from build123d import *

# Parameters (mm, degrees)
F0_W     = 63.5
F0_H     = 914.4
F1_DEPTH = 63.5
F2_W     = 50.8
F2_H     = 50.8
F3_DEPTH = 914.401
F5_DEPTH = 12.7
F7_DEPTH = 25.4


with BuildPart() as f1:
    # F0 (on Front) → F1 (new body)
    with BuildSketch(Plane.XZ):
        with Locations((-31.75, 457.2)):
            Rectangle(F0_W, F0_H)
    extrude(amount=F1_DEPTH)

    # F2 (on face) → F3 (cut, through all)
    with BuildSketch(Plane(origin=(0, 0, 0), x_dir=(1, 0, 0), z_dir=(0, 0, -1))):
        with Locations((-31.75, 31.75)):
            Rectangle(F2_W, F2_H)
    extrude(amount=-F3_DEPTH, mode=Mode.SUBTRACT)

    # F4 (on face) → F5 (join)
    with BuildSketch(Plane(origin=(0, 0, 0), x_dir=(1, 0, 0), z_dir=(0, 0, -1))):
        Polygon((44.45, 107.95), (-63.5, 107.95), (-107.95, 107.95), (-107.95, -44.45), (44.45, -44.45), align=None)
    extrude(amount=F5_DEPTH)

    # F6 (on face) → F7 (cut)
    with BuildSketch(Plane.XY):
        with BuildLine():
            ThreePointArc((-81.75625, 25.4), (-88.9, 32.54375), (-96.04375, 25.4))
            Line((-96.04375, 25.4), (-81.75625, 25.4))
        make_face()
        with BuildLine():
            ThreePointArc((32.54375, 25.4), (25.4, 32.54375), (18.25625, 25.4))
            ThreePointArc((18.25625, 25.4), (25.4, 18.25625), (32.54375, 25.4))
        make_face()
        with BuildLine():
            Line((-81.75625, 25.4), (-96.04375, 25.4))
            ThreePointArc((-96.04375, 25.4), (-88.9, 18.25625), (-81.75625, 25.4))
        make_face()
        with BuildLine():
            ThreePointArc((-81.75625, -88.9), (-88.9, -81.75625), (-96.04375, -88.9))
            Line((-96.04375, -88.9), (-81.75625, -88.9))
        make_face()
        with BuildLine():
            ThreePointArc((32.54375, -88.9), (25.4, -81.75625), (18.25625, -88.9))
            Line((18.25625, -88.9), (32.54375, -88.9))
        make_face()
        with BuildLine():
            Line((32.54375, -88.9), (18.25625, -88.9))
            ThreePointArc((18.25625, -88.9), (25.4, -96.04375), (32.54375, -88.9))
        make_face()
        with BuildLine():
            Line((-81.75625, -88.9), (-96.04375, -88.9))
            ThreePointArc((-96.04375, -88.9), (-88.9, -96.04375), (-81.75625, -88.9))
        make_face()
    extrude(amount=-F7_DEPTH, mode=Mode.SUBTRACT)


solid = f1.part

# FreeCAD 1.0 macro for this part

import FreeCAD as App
import Part
import Sketcher
from FreeCAD import Vector
Q = App.Units.Quantity


def add_polygon(sketch, points):
    """Adds a closed chain of lines whose ends are joined by coincident constraints."""
    first, n = sketch.GeometryCount, len(points)
    for a, b in zip(points, points[1:] + points[:1]):
        sketch.addGeometry(Part.LineSegment(App.Vector(*a, 0), App.Vector(*b, 0)), False)
    for i in range(n):
        sketch.addConstraint(Sketcher.Constraint("Coincident", first + i, 2, first + (i + 1) % n, 1))

doc = App.newDocument("Part")
body = doc.addObject("PartDesign::Body", "Body")

sketch1 = body.newObject("Sketcher::SketchObject", "Sketch")
sketch1.AttachmentSupport = (doc.getObject("XZ_Plane"), [""])
sketch1.MapMode = "FlatFace"
add_polygon(sketch1, [(-64, 914), (-64, 0), (0, 0), (0, 914)])
sketch1.addConstraint(Sketcher.Constraint("Vertical", 0))
sketch1.addConstraint(Sketcher.Constraint("Horizontal", 1))
sketch1.addConstraint(Sketcher.Constraint("Vertical", 2))
sketch1.addConstraint(Sketcher.Constraint("Horizontal", 3))
sketch1.addConstraint(Sketcher.Constraint("Coincident", 1, 2, -1, 1))
sketch1.addConstraint(Sketcher.Constraint("DistanceY", 0, 2, 0, 1, Q("36 in")))
sketch1.addConstraint(Sketcher.Constraint("DistanceX", 1, 1, 1, 2, Q("2.5 in")))
pad1 = body.newObject("PartDesign::Pad", "Pad")
pad1.Profile = sketch1
pad1.Length = Q("2.5 in")

sketch2 = body.newObject("Sketcher::SketchObject", "Sketch001")
sketch2.AttachmentSupport = (doc.getObject("XY_Plane"), [""])
sketch2.MapMode = "FlatFace"
add_polygon(sketch2, [(-57, -57), (-57, -6), (-6, -6), (-6, -57)])
sketch2.addConstraint(Sketcher.Constraint("Vertical", 0))
sketch2.addConstraint(Sketcher.Constraint("Horizontal", 1))
sketch2.addConstraint(Sketcher.Constraint("Vertical", 2))
sketch2.addConstraint(Sketcher.Constraint("Horizontal", 3))
sketch2.addConstraint(Sketcher.Constraint("Equal", 3, 0))
sketch2.addConstraint(Sketcher.Constraint("DistanceX", 1, 1, 1, 2, Q("2 in")))
sketch2.addConstraint(Sketcher.Constraint("DistanceX", 0, 2, -1, 1, Q("2.25 in")))
sketch2.addConstraint(Sketcher.Constraint("DistanceY", 0, 2, -1, 1, Q("0.25 in")))
pocket1 = body.newObject("PartDesign::Pocket", "Pocket")
pocket1.Profile = sketch2
pocket1.Type = "ThroughAll"
pocket1.Reversed = True

sketch3 = body.newObject("Sketcher::SketchObject", "Sketch002")
sketch3.AttachmentSupport = (doc.getObject("XY_Plane"), [""])
sketch3.MapMode = "FlatFace"
add_polygon(sketch3, [(44, -108), (-108, -108), (-108, 44), (44, 44)])
sketch3.addConstraint(Sketcher.Constraint("Horizontal", 0))
sketch3.addConstraint(Sketcher.Constraint("Vertical", 1))
sketch3.addConstraint(Sketcher.Constraint("Horizontal", 2))
sketch3.addConstraint(Sketcher.Constraint("Vertical", 3))
sketch3.addConstraint(Sketcher.Constraint("Equal", 2, 1))
sketch3.addConstraint(Sketcher.Constraint("DistanceX", 0, 2, 0, 1, Q("6 in")))
sketch3.addConstraint(Sketcher.Constraint("DistanceX", 0, 2, -1, 1, Q("4.25 in")))
sketch3.addConstraint(Sketcher.Constraint("DistanceY", 0, 2, -1, 1, Q("4.25 in")))
pad2 = body.newObject("PartDesign::Pad", "Pad001")
pad2.Profile = sketch3
pad2.Length = Q("0.5 in")
pad2.Reversed = True

sketch4 = body.newObject("Sketcher::SketchObject", "Sketch003")
sketch4.AttachmentSupport = (doc.getObject("XY_Plane"), [""])
sketch4.MapMode = "FlatFace"
sketch4.addGeometry(Part.Circle(Vector(-89, 25, 0), Vector(0, 0, 1), 7), False)
sketch4.addGeometry(Part.Circle(Vector(25, 25, 0), Vector(0, 0, 1), 7), False)
sketch4.addGeometry(Part.Circle(Vector(-89, -89, 0), Vector(0, 0, 1), 7), False)
sketch4.addGeometry(Part.Circle(Vector(25, -89, 0), Vector(0, 0, 1), 7), False)
sketch4.addConstraint(Sketcher.Constraint("Equal", 0, 1))
sketch4.addConstraint(Sketcher.Constraint("Equal", 1, 2))
sketch4.addConstraint(Sketcher.Constraint("Equal", 2, 3))
sketch4.addConstraint(Sketcher.Constraint("Horizontal", 0, 3, 1, 3))
sketch4.addConstraint(Sketcher.Constraint("Horizontal", 2, 3, 3, 3))
sketch4.addConstraint(Sketcher.Constraint("Vertical", 0, 3, 2, 3))
sketch4.addConstraint(Sketcher.Constraint("Vertical", 1, 3, 3, 3))
sketch4.addConstraint(Sketcher.Constraint("Diameter", 0, Q("0.5625 in")))
sketch4.addConstraint(Sketcher.Constraint("DistanceY", -1, 1, 0, 3, Q("1 in")))
sketch4.addConstraint(Sketcher.Constraint("DistanceX", -1, 1, 1, 3, Q("1 in")))
sketch4.addConstraint(Sketcher.Constraint("DistanceX", 0, 3, -1, 1, Q("3.5 in")))
sketch4.addConstraint(Sketcher.Constraint("DistanceY", 2, 3, -1, 1, Q("3.5 in")))
pocket2 = body.newObject("PartDesign::Pocket", "Pocket001")
pocket2.Profile = sketch4
pocket2.Length = Q("1 in")

doc.recompute()
